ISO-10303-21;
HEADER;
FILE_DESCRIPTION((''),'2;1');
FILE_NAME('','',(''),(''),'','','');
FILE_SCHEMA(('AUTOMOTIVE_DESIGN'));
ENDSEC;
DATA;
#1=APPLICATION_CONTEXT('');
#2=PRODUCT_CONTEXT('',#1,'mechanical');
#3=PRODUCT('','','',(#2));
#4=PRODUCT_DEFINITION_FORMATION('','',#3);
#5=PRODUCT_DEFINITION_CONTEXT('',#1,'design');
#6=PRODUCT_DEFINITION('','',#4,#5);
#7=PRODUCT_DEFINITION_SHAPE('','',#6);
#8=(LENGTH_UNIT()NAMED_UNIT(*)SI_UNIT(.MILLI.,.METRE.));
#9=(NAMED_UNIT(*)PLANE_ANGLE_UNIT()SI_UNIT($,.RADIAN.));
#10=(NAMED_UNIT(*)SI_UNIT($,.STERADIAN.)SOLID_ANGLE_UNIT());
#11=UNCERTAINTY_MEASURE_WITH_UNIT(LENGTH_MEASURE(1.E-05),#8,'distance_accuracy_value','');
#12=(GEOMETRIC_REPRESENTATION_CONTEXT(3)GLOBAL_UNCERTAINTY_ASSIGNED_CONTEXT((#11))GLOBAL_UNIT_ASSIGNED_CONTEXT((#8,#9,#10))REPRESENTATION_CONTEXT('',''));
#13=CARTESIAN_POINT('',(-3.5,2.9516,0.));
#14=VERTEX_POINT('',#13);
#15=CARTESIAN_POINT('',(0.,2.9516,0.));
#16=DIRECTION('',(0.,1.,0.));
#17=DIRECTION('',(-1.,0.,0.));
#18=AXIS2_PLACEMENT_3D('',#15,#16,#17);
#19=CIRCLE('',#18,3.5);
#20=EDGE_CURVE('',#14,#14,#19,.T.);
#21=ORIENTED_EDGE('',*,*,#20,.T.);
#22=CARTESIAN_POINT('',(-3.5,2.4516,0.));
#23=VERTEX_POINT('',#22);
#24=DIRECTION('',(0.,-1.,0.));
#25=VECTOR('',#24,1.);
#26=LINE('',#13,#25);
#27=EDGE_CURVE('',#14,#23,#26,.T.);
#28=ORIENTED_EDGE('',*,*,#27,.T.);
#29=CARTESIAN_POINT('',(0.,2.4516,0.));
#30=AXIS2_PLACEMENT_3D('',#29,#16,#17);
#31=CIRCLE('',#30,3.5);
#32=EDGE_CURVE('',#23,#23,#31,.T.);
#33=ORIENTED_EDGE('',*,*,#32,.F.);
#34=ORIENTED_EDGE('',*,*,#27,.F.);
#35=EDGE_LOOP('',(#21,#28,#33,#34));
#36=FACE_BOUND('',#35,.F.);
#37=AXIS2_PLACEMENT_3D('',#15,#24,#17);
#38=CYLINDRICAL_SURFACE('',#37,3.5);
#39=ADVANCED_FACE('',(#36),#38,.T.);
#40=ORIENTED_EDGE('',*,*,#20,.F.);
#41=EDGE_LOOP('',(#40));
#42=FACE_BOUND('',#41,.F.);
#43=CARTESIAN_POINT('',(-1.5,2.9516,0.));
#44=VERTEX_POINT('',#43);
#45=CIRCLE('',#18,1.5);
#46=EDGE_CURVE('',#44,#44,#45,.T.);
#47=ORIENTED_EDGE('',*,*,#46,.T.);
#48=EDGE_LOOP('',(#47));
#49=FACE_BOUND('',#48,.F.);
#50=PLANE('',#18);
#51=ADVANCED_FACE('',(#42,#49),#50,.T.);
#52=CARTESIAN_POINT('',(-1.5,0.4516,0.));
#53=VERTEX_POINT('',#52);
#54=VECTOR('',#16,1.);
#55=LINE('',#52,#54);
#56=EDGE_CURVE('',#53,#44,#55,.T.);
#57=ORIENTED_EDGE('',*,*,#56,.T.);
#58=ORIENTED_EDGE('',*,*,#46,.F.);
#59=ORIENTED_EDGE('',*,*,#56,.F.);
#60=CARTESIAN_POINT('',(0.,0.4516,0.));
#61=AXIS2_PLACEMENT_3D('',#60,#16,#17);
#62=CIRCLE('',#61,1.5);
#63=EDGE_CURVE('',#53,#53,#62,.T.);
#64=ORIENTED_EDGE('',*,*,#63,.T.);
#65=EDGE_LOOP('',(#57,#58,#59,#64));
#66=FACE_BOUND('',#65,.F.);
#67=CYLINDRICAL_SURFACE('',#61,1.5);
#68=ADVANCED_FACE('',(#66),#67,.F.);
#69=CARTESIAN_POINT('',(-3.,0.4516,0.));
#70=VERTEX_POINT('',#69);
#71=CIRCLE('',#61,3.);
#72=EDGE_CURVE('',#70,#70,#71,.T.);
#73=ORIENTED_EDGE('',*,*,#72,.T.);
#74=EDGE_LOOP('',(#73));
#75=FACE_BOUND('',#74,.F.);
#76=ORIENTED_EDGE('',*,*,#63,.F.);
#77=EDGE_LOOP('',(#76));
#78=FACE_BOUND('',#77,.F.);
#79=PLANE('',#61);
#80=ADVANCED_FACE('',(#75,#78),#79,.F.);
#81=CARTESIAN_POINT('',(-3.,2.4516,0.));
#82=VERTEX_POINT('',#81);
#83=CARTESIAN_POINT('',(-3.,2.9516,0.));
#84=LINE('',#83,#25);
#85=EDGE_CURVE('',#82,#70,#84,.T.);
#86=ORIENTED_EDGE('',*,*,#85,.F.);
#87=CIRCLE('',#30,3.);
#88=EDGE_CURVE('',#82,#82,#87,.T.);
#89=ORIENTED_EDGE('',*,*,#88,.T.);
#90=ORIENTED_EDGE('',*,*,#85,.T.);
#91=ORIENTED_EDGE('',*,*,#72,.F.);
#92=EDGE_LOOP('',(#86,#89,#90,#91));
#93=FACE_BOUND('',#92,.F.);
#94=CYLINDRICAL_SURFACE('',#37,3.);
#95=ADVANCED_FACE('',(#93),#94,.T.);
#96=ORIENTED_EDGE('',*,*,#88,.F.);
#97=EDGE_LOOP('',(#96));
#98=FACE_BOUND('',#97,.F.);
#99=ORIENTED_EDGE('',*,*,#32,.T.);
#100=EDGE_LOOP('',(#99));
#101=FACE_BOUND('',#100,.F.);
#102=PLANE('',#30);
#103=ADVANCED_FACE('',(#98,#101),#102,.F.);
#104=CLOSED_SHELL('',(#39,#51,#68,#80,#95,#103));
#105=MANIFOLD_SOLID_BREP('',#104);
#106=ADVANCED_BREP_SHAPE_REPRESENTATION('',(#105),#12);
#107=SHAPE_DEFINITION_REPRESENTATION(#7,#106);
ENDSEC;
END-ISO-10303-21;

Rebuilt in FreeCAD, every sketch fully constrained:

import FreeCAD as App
import Part
import Sketcher
Q = App.Units.Quantity


def add_polygon(sketch, points):
    """Adds a closed chain of lines whose ends are joined by coincident constraints."""
    first, n = sketch.GeometryCount, len(points)
    for a, b in zip(points, points[1:] + points[:1]):
        sketch.addGeometry(Part.LineSegment(App.Vector(*a, 0), App.Vector(*b, 0)), False)
    for i in range(n):
        sketch.addConstraint(Sketcher.Constraint("Coincident", first + i, 2, first + (i + 1) % n, 1))

doc = App.newDocument("Part")
params = doc.addObject("Spreadsheet::Sheet", "Params")
for row, (alias, value) in enumerate([
    ("sketch1_width", "0.5 mm"),
    ("sketch1_width2", "1.5 mm"),
    ("revolution_angle", "360 deg"),
], start=1):
    params.set(f"A{row}", alias)
    params.set(f"B{row}", "=" + value)
    params.setAlias(f"B{row}", alias)

body = doc.addObject("PartDesign::Body", "Body")

# Sketch on XY plane
sketch1 = body.newObject("Sketcher::SketchObject", "Sketch")
sketch1.AttachmentSupport = (doc.getObject("XY_Plane"), [""])
sketch1.MapMode = "FlatFace"
add_polygon(sketch1, [(-1.5, 0.5), (-1.5, 3), (-3.5, 3), (-3.5, 2.5), (-3, 2.5), (-3, 0.5)])  # lines 0-5
sketch1.addConstraint(Sketcher.Constraint("Vertical", 0))
sketch1.addConstraint(Sketcher.Constraint("Horizontal", 1))
sketch1.addConstraint(Sketcher.Constraint("Vertical", 2))
sketch1.addConstraint(Sketcher.Constraint("Horizontal", 3))
sketch1.addConstraint(Sketcher.Constraint("Vertical", 4))
sketch1.addConstraint(Sketcher.Constraint("Horizontal", 5))
sketch1.addConstraint(Sketcher.Constraint("Equal", 3, 2))
sketch1.addConstraint(Sketcher.Constraint("Equal", 1, 4))
sketch1.addConstraint(Sketcher.Constraint("DistanceX", 3, 1, 3, 2, Q("0.5 mm")))
sketch1.addConstraint(Sketcher.Constraint("DistanceX", 5, 1, 5, 2, Q("1.5 mm")))
sketch1.addConstraint(Sketcher.Constraint("DistanceX", 3, 2, -1, 1, Q("3 mm")))
sketch1.addConstraint(Sketcher.Constraint("DistanceY", -1, 1, 0, 2, Q("2.9516 mm")))
sketch1.setExpression("Constraints[14]", "Params.sketch1_width")
sketch1.setExpression("Constraints[15]", "Params.sketch1_width2")
revolution = body.newObject("PartDesign::Revolution", "Revolution")
revolution.Profile = sketch1
revolution.ReferenceAxis = (sketch1, ["V_Axis"])
revolution.setExpression("Angle", "Params.revolution_angle")

doc.recompute()
